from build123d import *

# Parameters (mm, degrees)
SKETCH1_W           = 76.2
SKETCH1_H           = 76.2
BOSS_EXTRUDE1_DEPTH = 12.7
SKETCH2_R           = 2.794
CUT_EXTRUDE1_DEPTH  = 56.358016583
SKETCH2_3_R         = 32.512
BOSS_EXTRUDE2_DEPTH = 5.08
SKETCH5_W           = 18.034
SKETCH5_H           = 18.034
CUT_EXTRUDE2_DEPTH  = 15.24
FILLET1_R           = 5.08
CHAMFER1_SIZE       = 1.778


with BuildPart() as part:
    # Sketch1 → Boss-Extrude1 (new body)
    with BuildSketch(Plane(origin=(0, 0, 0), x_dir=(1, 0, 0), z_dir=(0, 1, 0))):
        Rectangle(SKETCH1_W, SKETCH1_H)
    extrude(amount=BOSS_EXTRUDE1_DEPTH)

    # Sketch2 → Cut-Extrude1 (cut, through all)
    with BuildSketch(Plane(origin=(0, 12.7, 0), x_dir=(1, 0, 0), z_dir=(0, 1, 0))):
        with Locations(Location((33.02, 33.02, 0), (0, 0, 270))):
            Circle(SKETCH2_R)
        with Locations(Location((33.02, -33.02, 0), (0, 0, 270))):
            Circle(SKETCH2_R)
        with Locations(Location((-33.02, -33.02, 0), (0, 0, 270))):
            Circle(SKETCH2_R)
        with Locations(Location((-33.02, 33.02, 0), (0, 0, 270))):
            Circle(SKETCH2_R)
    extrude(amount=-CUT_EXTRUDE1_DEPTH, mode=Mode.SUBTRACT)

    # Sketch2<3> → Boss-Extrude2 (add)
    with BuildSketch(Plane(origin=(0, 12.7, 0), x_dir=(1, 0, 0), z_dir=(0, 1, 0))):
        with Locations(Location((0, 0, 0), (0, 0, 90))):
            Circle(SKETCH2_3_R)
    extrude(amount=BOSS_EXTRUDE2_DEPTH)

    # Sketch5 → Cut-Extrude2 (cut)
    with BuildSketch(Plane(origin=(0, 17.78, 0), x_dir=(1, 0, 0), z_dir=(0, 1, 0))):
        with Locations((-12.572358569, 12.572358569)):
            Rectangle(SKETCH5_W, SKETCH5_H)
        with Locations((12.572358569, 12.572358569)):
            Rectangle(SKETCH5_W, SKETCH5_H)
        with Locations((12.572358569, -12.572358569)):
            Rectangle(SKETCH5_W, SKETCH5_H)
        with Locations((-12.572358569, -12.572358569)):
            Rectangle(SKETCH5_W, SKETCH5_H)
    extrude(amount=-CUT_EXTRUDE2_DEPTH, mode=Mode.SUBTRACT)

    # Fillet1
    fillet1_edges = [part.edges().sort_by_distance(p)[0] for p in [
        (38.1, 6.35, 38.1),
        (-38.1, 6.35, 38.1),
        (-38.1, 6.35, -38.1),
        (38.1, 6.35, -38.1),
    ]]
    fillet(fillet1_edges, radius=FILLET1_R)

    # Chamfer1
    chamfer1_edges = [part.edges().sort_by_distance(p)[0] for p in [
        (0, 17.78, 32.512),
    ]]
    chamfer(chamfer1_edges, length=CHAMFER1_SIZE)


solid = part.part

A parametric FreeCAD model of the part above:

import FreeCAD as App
import Part
import Sketcher
from FreeCAD import Vector
Q = App.Units.Quantity


def edges_at(feature, points):
    """Names of the edges that pass closest to the given points."""
    edges = feature.Shape.Edges
    near = lambda p: min(range(len(edges)), key=lambda i: edges[i].distToShape(Part.Vertex(*p))[0])
    return sorted({f"Edge{near(p) + 1}" for p in points})


def add_polygon(sketch, points):
    """Adds a closed chain of lines whose ends are joined by coincident constraints."""
    first, n = sketch.GeometryCount, len(points)
    for a, b in zip(points, points[1:] + points[:1]):
        sketch.addGeometry(Part.LineSegment(App.Vector(*a, 0), App.Vector(*b, 0)), False)
    for i in range(n):
        sketch.addConstraint(Sketcher.Constraint("Coincident", first + i, 2, first + (i + 1) % n, 1))

doc = App.newDocument("Part")
body = doc.addObject("PartDesign::Body", "Body")

sketch1 = body.newObject("Sketcher::SketchObject", "Sketch")
sketch1.AttachmentSupport = (doc.getObject("XZ_Plane"), [""])
sketch1.MapMode = "FlatFace"
add_polygon(sketch1, [(-38, -38), (-38, 38), (38, 38), (38, -38)])
sketch1.addConstraint([
    Sketcher.Constraint("Vertical", 0),
    Sketcher.Constraint("Horizontal", 1),
    Sketcher.Constraint("Vertical", 2),
    Sketcher.Constraint("Horizontal", 3),
    Sketcher.Constraint("Symmetric", 0, 2, 2, 2, -1, 1),
    Sketcher.Constraint("Equal", 3, 0),
    Sketcher.Constraint("DistanceX", 1, 1, 1, 2, Q("3 in")),
])
pad1 = body.newObject("PartDesign::Pad", "Pad")
pad1.Profile = sketch1
pad1.Length = Q("0.5 in")
pad1.Reversed = True

sketch2 = body.newObject("Sketcher::SketchObject", "Sketch001")
sketch2.AttachmentSupport = (doc.getObject("XZ_Plane"), [""])
sketch2.MapMode = "FlatFace"
sketch2.AttachmentOffset = App.Placement(Vector(0, 0, -0.5 * 25.4), App.Rotation())
sketch2.addGeometry([
    Part.Circle(Vector(33, -33, 0), Vector(0, 0, 1), 2.8),
    Part.Circle(Vector(33, 33, 0), Vector(0, 0, 1), 2.8),
    Part.Circle(Vector(-33, 33, 0), Vector(0, 0, 1), 2.8),
    Part.Circle(Vector(-33, -33, 0), Vector(0, 0, 1), 2.8),
], False)
sketch2.addConstraint([
    Sketcher.Constraint("Equal", 0, 1),
    Sketcher.Constraint("Equal", 1, 2),
    Sketcher.Constraint("Equal", 2, 3),
    Sketcher.Constraint("Symmetric", 0, 3, 2, 3, -1, 1),
    Sketcher.Constraint("Symmetric", 1, 3, 3, 3, -1, 1),
    Sketcher.Constraint("Symmetric", 1, 3, 2, 3, -2),
    Sketcher.Constraint("Diameter", 0, Q("0.22 in")),
    Sketcher.Constraint("DistanceX", -1, 1, 0, 3, Q("1.3 in")),
    Sketcher.Constraint("DistanceY", 0, 3, -1, 1, Q("1.3 in")),
])
pocket1 = body.newObject("PartDesign::Pocket", "Pocket")
pocket1.Profile = sketch2
pocket1.Type = "ThroughAll"
pocket1.Reversed = True

sketch3 = body.newObject("Sketcher::SketchObject", "Sketch002")
sketch3.AttachmentSupport = (doc.getObject("XZ_Plane"), [""])
sketch3.MapMode = "FlatFace"
sketch3.AttachmentOffset = App.Placement(Vector(0, 0, -0.5 * 25.4), App.Rotation())
sketch3.addGeometry(Part.Circle(Vector(0, 0, 0), Vector(0, 0, 1), 33), False)
sketch3.addConstraint([
    Sketcher.Constraint("Coincident", 0, 3, -1, 1),
    Sketcher.Constraint("Diameter", 0, Q("2.56 in")),
])
pad2 = body.newObject("PartDesign::Pad", "Pad001")
pad2.Profile = sketch3
pad2.Length = Q("0.2 in")
pad2.Reversed = True

sketch4 = body.newObject("Sketcher::SketchObject", "Sketch003")
sketch4.AttachmentSupport = (doc.getObject("XZ_Plane"), [""])
sketch4.MapMode = "FlatFace"
sketch4.AttachmentOffset = App.Placement(Vector(0, 0, -0.7 * 25.4), App.Rotation())
add_polygon(sketch4, [(-22, -22), (-22, -4), (-4, -4), (-4, -22)])
add_polygon(sketch4, [(4, -22), (4, -4), (22, -4), (22, -22)])
add_polygon(sketch4, [(4, 4), (4, 22), (22, 22), (22, 4)])
add_polygon(sketch4, [(-22, 4), (-22, 22), (-4, 22), (-4, 4)])
sketch4.addConstraint([
    Sketcher.Constraint("Vertical", 0),
    Sketcher.Constraint("Horizontal", 1),
    Sketcher.Constraint("Vertical", 2),
    Sketcher.Constraint("Horizontal", 3),
    Sketcher.Constraint("Vertical", 4),
    Sketcher.Constraint("Horizontal", 5),
    Sketcher.Constraint("Vertical", 6),
    Sketcher.Constraint("Horizontal", 7),
    Sketcher.Constraint("Vertical", 8),
    Sketcher.Constraint("Horizontal", 9),
    Sketcher.Constraint("Vertical", 10),
    Sketcher.Constraint("Horizontal", 11),
    Sketcher.Constraint("Vertical", 12),
    Sketcher.Constraint("Horizontal", 13),
    Sketcher.Constraint("Vertical", 14),
    Sketcher.Constraint("Horizontal", 15),
    Sketcher.Constraint("Symmetric", 2, 2, 8, 2, -1, 1),
    Sketcher.Constraint("Symmetric", 0, 2, 10, 2, -1, 1),
    Sketcher.Constraint("Symmetric", 6, 2, 12, 2, -1, 1),
    Sketcher.Constraint("Symmetric", 4, 2, 14, 2, -1, 1),
    Sketcher.Constraint("Symmetric", 1, 2, 4, 2, -2),
    Sketcher.Constraint("Symmetric", 3, 2, 6, 2, -2),
    Sketcher.Constraint("Equal", 15, 0),
    Sketcher.Constraint("DistanceX", 1, 1, 1, 2, Q("0.71 in")),
    Sketcher.Constraint("DistanceX", 0, 2, -1, 1, 21.589359),
    Sketcher.Constraint("DistanceY", 0, 2, -1, 1, 3.555359),
])
pocket2 = body.newObject("PartDesign::Pocket", "Pocket001")
pocket2.Profile = sketch4
pocket2.Length = Q("0.6 in")
pocket2.Reversed = True
doc.recompute()

fillet = body.newObject("PartDesign::Fillet", "Fillet")
fillet.Base = (pocket2, edges_at(pocket2, [
    (38.1, 6.35, 38.1),
    (-38.1, 6.35, 38.1),
    (-38.1, 6.35, -38.1),
    (38.1, 6.35, -38.1),
]))
fillet.Radius = Q("0.2 in")
doc.recompute()

chamfer = body.newObject("PartDesign::Chamfer", "Chamfer")
chamfer.Base = (fillet, edges_at(fillet, [(0, 17.78, 32.512)]))
chamfer.Size = Q("0.07 in")

doc.recompute()
